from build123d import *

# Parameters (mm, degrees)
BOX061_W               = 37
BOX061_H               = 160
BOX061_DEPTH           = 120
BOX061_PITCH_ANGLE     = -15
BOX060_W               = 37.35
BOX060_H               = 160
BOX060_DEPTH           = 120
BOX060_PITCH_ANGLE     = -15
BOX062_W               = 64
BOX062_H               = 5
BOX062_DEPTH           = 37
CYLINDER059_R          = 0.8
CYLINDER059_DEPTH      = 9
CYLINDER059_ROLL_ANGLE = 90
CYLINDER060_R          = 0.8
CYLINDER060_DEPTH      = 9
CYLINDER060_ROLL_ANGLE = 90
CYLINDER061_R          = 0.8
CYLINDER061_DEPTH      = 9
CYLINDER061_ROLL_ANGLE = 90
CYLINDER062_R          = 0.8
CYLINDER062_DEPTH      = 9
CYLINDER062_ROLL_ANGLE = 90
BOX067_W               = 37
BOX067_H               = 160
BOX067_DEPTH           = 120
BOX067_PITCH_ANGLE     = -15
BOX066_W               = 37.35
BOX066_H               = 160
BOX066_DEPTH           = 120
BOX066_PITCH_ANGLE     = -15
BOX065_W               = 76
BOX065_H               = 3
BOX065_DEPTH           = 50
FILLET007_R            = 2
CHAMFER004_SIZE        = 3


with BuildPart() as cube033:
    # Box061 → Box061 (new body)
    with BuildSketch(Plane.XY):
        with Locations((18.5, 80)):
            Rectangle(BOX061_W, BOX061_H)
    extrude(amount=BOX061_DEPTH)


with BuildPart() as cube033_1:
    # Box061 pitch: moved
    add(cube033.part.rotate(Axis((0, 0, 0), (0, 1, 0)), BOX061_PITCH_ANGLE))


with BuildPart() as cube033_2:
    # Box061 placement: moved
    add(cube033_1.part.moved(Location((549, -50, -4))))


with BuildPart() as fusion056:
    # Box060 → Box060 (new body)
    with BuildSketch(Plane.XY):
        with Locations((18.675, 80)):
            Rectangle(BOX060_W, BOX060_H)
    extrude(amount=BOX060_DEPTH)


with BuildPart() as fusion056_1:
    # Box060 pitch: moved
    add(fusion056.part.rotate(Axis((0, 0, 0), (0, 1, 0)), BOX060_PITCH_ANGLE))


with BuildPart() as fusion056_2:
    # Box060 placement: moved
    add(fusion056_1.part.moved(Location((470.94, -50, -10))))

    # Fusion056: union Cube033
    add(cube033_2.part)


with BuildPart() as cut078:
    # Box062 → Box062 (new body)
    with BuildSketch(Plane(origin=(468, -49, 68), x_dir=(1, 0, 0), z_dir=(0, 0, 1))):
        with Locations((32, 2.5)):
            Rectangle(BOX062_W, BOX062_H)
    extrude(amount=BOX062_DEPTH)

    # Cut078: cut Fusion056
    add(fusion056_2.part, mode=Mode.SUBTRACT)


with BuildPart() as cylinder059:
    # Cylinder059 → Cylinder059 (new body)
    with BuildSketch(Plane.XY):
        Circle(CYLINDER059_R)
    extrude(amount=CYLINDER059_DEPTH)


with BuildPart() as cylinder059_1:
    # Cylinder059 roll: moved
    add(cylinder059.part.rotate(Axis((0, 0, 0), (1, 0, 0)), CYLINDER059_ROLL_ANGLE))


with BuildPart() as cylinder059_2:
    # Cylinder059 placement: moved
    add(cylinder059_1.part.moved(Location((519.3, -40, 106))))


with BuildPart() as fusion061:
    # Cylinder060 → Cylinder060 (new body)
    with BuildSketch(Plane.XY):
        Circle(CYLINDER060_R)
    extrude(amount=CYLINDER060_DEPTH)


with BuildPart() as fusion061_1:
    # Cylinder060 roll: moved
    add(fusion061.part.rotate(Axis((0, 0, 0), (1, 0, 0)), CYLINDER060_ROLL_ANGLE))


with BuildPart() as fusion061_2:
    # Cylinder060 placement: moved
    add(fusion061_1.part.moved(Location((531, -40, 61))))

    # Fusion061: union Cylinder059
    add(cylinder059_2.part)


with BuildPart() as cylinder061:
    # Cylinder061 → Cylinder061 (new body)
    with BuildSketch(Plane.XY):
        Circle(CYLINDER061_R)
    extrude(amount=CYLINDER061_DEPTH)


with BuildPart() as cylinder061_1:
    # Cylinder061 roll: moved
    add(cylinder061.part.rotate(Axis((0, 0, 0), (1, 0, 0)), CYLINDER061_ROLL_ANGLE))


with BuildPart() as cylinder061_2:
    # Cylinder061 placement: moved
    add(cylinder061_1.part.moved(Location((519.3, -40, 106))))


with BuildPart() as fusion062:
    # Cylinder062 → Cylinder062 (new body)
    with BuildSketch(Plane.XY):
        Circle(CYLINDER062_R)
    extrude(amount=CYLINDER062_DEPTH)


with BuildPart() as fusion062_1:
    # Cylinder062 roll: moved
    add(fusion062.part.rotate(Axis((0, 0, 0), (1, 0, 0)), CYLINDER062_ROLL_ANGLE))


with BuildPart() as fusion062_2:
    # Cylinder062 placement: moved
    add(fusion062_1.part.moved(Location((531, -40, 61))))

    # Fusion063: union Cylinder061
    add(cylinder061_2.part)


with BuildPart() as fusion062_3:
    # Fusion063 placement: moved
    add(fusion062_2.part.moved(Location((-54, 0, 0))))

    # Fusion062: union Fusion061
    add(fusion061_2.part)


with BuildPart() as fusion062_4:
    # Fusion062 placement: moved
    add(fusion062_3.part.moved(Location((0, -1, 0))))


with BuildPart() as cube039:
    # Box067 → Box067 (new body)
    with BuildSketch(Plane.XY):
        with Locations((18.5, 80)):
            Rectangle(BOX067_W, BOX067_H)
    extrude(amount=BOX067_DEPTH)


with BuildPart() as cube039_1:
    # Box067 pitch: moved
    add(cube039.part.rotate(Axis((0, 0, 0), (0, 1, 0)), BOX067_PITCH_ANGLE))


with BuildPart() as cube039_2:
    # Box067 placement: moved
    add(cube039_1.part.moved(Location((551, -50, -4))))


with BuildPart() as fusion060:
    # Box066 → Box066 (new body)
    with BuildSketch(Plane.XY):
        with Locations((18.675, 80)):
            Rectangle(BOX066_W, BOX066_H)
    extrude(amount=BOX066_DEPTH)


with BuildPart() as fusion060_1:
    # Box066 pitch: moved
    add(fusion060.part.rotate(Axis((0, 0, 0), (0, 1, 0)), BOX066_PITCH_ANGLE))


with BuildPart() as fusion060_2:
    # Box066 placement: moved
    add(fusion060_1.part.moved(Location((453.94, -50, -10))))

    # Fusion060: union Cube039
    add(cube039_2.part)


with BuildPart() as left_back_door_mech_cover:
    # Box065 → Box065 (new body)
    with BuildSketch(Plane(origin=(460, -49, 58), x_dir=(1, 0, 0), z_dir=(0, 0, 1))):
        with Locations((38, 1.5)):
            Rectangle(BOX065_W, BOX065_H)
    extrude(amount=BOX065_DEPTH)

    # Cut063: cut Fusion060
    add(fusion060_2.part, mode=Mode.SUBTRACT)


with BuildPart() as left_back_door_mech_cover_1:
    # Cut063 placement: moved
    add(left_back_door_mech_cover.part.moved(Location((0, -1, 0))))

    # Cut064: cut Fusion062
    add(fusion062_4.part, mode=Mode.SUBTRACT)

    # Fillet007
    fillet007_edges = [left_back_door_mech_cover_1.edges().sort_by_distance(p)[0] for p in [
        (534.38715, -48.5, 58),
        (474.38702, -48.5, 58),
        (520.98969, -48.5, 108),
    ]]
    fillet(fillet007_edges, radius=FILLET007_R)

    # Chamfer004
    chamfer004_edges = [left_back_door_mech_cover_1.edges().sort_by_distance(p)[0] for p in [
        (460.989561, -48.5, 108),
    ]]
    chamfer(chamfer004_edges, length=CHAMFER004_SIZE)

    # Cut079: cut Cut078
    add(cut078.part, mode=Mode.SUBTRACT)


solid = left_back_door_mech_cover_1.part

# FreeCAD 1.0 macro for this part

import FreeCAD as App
import Part
import Sketcher
from FreeCAD import Vector


def edges_at(feature, points):
    """Names of the edges that pass closest to the given points."""
    edges = feature.Shape.Edges
    near = lambda p: min(range(len(edges)), key=lambda i: edges[i].distToShape(Part.Vertex(*p))[0])
    return sorted({f"Edge{near(p) + 1}" for p in points})

doc = App.newDocument("Part")
body = doc.addObject("PartDesign::Body", "Body")

# Sketch on XY plane
sketch1 = body.newObject("Sketcher::SketchObject", "Sketch")
sketch1.AttachmentSupport = (doc.getObject("XY_Plane"), [""])
sketch1.MapMode = "FlatFace"
sketch1.addGeometry([
    Part.LineSegment(Vector(0, 160, 0), Vector(0, 0, 0)),
    Part.LineSegment(Vector(0, 0, 0), Vector(37, 0, 0)),
    Part.LineSegment(Vector(37, 0, 0), Vector(37, 160, 0)),
    Part.LineSegment(Vector(37, 160, 0), Vector(0, 160, 0)),
], False)
sketch1.addConstraint([
    Sketcher.Constraint("Coincident", 0, 2, 1, 1),
    Sketcher.Constraint("Coincident", 1, 2, 2, 1),
    Sketcher.Constraint("Coincident", 2, 2, 3, 1),
    Sketcher.Constraint("Coincident", 3, 2, 0, 1),
    Sketcher.Constraint("Vertical", 0),
    Sketcher.Constraint("Horizontal", 1),
    Sketcher.Constraint("Vertical", 2),
    Sketcher.Constraint("Horizontal", 3),
    Sketcher.Constraint("Coincident", 0, 2, -1, 1),
    Sketcher.Constraint("DistanceX", 1, 1, 1, 2, 37.0),
    Sketcher.Constraint("DistanceY", 0, 2, 0, 1, 160.0),
])
pad1 = body.newObject("PartDesign::Pad", "Pad")
pad1.Profile = sketch1
pad1.Length = 120
body2 = doc.addObject("PartDesign::Body", "Body001")
doc.recompute()

body.Placement = App.Placement(Vector(0, 0, 0), App.Rotation(Vector(0, 1, 0), 345))
boolean = body2.newObject("PartDesign::Boolean", "Boolean")
boolean.Type = "Fuse"
boolean.addObjects([body])
body3 = doc.addObject("PartDesign::Body", "Body002")
doc.recompute()

body2.Placement = App.Placement(Vector(549, -50, -4), App.Rotation(Vector(0, 0, 1), 0))
boolean2 = body3.newObject("PartDesign::Boolean", "Boolean001")
boolean2.Type = "Fuse"
boolean2.addObjects([body2])
body4 = doc.addObject("PartDesign::Body", "Body003")

# Sketch on XY plane
sketch2 = body4.newObject("Sketcher::SketchObject", "Sketch001")
sketch2.AttachmentSupport = (doc.getObject("XY_Plane003"), [""])
sketch2.MapMode = "FlatFace"
sketch2.addGeometry([
    Part.LineSegment(Vector(0, 160, 0), Vector(0, 0, 0)),
    Part.LineSegment(Vector(0, 0, 0), Vector(37.35, 0, 0)),
    Part.LineSegment(Vector(37.35, 0, 0), Vector(37.35, 160, 0)),
    Part.LineSegment(Vector(37.35, 160, 0), Vector(0, 160, 0)),
], False)
sketch2.addConstraint([
    Sketcher.Constraint("Coincident", 0, 2, 1, 1),
    Sketcher.Constraint("Coincident", 1, 2, 2, 1),
    Sketcher.Constraint("Coincident", 2, 2, 3, 1),
    Sketcher.Constraint("Coincident", 3, 2, 0, 1),
    Sketcher.Constraint("Vertical", 0),
    Sketcher.Constraint("Horizontal", 1),
    Sketcher.Constraint("Vertical", 2),
    Sketcher.Constraint("Horizontal", 3),
    Sketcher.Constraint("Coincident", 0, 2, -1, 1),
    Sketcher.Constraint("DistanceY", 0, 2, 0, 1, 160.0),
    Sketcher.Constraint("DistanceX", 1, 1, 1, 2, 37.35),
])
pad2 = body4.newObject("PartDesign::Pad", "Pad001")
pad2.Profile = sketch2
pad2.Length = 120
body5 = doc.addObject("PartDesign::Body", "Body004")
doc.recompute()

body4.Placement = App.Placement(Vector(0, 0, 0), App.Rotation(Vector(0, 1, 0), 345))
boolean3 = body5.newObject("PartDesign::Boolean", "Boolean002")
boolean3.Type = "Fuse"
boolean3.addObjects([body4])
body6 = doc.addObject("PartDesign::Body", "Body005")
body6.AllowCompound = True
doc.recompute()

body5.Placement = App.Placement(Vector(470.94, -50, -10), App.Rotation(Vector(0, 0, 1), 0))
boolean4 = body6.newObject("PartDesign::Boolean", "Boolean003")
boolean4.Type = "Fuse"
boolean4.addObjects([body5])
doc.recompute()

boolean5 = body6.newObject("PartDesign::Boolean", "Boolean004")
boolean5.Type = "Fuse"
boolean5.addObjects([body3])
body7 = doc.addObject("PartDesign::Body", "Body006")

# Sketch on XY plane
sketch3 = body7.newObject("Sketcher::SketchObject", "Sketch002")
sketch3.AttachmentSupport = (doc.getObject("XY_Plane006"), [""])
sketch3.MapMode = "FlatFace"
sketch3.AttachmentOffset = App.Placement(Vector(0, 0, 68), App.Rotation())
sketch3.addGeometry([
    Part.LineSegment(Vector(468, -44, 0), Vector(468, -49, 0)),
    Part.LineSegment(Vector(468, -49, 0), Vector(532, -49, 0)),
    Part.LineSegment(Vector(532, -49, 0), Vector(532, -44, 0)),
    Part.LineSegment(Vector(532, -44, 0), Vector(468, -44, 0)),
], False)
sketch3.addConstraint([
    Sketcher.Constraint("Coincident", 0, 2, 1, 1),
    Sketcher.Constraint("Coincident", 1, 2, 2, 1),
    Sketcher.Constraint("Coincident", 2, 2, 3, 1),
    Sketcher.Constraint("Coincident", 3, 2, 0, 1),
    Sketcher.Constraint("Vertical", 0),
    Sketcher.Constraint("Horizontal", 1),
    Sketcher.Constraint("Vertical", 2),
    Sketcher.Constraint("Horizontal", 3),
    Sketcher.Constraint("DistanceX", 1, 1, 1, 2, 64.0),
    Sketcher.Constraint("DistanceY", 0, 2, 0, 1, 5.0),
    Sketcher.Constraint("DistanceX", -1, 1, 0, 2, 468.0),
    Sketcher.Constraint("DistanceY", 0, 2, -1, 1, 49.0),
])
pad3 = body7.newObject("PartDesign::Pad", "Pad002")
pad3.Profile = sketch3
pad3.Length = 37
doc.recompute()

boolean6 = body7.newObject("PartDesign::Boolean", "Boolean005")
boolean6.Type = "Cut"
boolean6.addObjects([body6])
body8 = doc.addObject("PartDesign::Body", "Body007")

# Sketch on XY plane
sketch4 = body8.newObject("Sketcher::SketchObject", "Sketch003")
sketch4.AttachmentSupport = (doc.getObject("XY_Plane007"), [""])
sketch4.MapMode = "FlatFace"
sketch4.addGeometry(Part.Circle(Vector(0, 0, 0), Vector(0, 0, 1), 0.8), False)
sketch4.addConstraint([
    Sketcher.Constraint("Coincident", 0, 3, -1, 1),
    Sketcher.Constraint("Diameter", 0, 1.6),
])
pad4 = body8.newObject("PartDesign::Pad", "Pad003")
pad4.Profile = sketch4
pad4.Length = 9
body9 = doc.addObject("PartDesign::Body", "Body008")
doc.recompute()

body8.Placement = App.Placement(Vector(0, 0, 0), App.Rotation(Vector(1, 0, 0), 90))
boolean7 = body9.newObject("PartDesign::Boolean", "Boolean006")
boolean7.Type = "Fuse"
boolean7.addObjects([body8])
body10 = doc.addObject("PartDesign::Body", "Body009")
doc.recompute()

body9.Placement = App.Placement(Vector(519.3, -40, 106), App.Rotation(Vector(0, 0, 1), 0))
boolean8 = body10.newObject("PartDesign::Boolean", "Boolean007")
boolean8.Type = "Fuse"
boolean8.addObjects([body9])
body11 = doc.addObject("PartDesign::Body", "Body010")

# Sketch on XY plane
sketch5 = body11.newObject("Sketcher::SketchObject", "Sketch004")
sketch5.AttachmentSupport = (doc.getObject("XY_Plane010"), [""])
sketch5.MapMode = "FlatFace"
sketch5.addGeometry(Part.Circle(Vector(0, 0, 0), Vector(0, 0, 1), 0.8), False)
sketch5.addConstraint([
    Sketcher.Constraint("Coincident", 0, 3, -1, 1),
    Sketcher.Constraint("Diameter", 0, 1.6),
])
pad5 = body11.newObject("PartDesign::Pad", "Pad004")
pad5.Profile = sketch5
pad5.Length = 9
body12 = doc.addObject("PartDesign::Body", "Body011")
doc.recompute()

body11.Placement = App.Placement(Vector(0, 0, 0), App.Rotation(Vector(1, 0, 0), 90))
boolean9 = body12.newObject("PartDesign::Boolean", "Boolean008")
boolean9.Type = "Fuse"
boolean9.addObjects([body11])
body13 = doc.addObject("PartDesign::Body", "Body012")
body13.AllowCompound = True
doc.recompute()

body12.Placement = App.Placement(Vector(531, -40, 61), App.Rotation(Vector(0, 0, 1), 0))
boolean10 = body13.newObject("PartDesign::Boolean", "Boolean009")
boolean10.Type = "Fuse"
boolean10.addObjects([body12])
doc.recompute()

boolean11 = body13.newObject("PartDesign::Boolean", "Boolean010")
boolean11.Type = "Fuse"
boolean11.addObjects([body10])
body14 = doc.addObject("PartDesign::Body", "Body013")

# Sketch on XY plane
sketch6 = body14.newObject("Sketcher::SketchObject", "Sketch005")
sketch6.AttachmentSupport = (doc.getObject("XY_Plane013"), [""])
sketch6.MapMode = "FlatFace"
sketch6.addGeometry(Part.Circle(Vector(0, 0, 0), Vector(0, 0, 1), 0.8), False)
sketch6.addConstraint([
    Sketcher.Constraint("Coincident", 0, 3, -1, 1),
    Sketcher.Constraint("Diameter", 0, 1.6),
])
pad6 = body14.newObject("PartDesign::Pad", "Pad005")
pad6.Profile = sketch6
pad6.Length = 9
body15 = doc.addObject("PartDesign::Body", "Body014")
doc.recompute()

body14.Placement = App.Placement(Vector(0, 0, 0), App.Rotation(Vector(1, 0, 0), 90))
boolean12 = body15.newObject("PartDesign::Boolean", "Boolean011")
boolean12.Type = "Fuse"
boolean12.addObjects([body14])
body16 = doc.addObject("PartDesign::Body", "Body015")
doc.recompute()

body15.Placement = App.Placement(Vector(519.3, -40, 106), App.Rotation(Vector(0, 0, 1), 0))
boolean13 = body16.newObject("PartDesign::Boolean", "Boolean012")
boolean13.Type = "Fuse"
boolean13.addObjects([body15])
body17 = doc.addObject("PartDesign::Body", "Body016")

# Sketch on XY plane
sketch7 = body17.newObject("Sketcher::SketchObject", "Sketch006")
sketch7.AttachmentSupport = (doc.getObject("XY_Plane016"), [""])
sketch7.MapMode = "FlatFace"
sketch7.addGeometry(Part.Circle(Vector(0, 0, 0), Vector(0, 0, 1), 0.8), False)
sketch7.addConstraint([
    Sketcher.Constraint("Coincident", 0, 3, -1, 1),
    Sketcher.Constraint("Diameter", 0, 1.6),
])
pad7 = body17.newObject("PartDesign::Pad", "Pad006")
pad7.Profile = sketch7
pad7.Length = 9
body18 = doc.addObject("PartDesign::Body", "Body017")
doc.recompute()

body17.Placement = App.Placement(Vector(0, 0, 0), App.Rotation(Vector(1, 0, 0), 90))
boolean14 = body18.newObject("PartDesign::Boolean", "Boolean013")
boolean14.Type = "Fuse"
boolean14.addObjects([body17])
body19 = doc.addObject("PartDesign::Body", "Body018")
body19.AllowCompound = True
doc.recompute()

body18.Placement = App.Placement(Vector(531, -40, 61), App.Rotation(Vector(0, 0, 1), 0))
boolean15 = body19.newObject("PartDesign::Boolean", "Boolean014")
boolean15.Type = "Fuse"
boolean15.addObjects([body18])
doc.recompute()

boolean16 = body19.newObject("PartDesign::Boolean", "Boolean015")
boolean16.Type = "Fuse"
boolean16.addObjects([body16])
body20 = doc.addObject("PartDesign::Body", "Body019")
body20.AllowCompound = True
doc.recompute()

body19.Placement = App.Placement(Vector(-54, 0, 0), App.Rotation(Vector(0, 0, 1), 0))
boolean17 = body20.newObject("PartDesign::Boolean", "Boolean016")
boolean17.Type = "Fuse"
boolean17.addObjects([body19])
doc.recompute()

boolean18 = body20.newObject("PartDesign::Boolean", "Boolean017")
boolean18.Type = "Fuse"
boolean18.addObjects([body13])
body21 = doc.addObject("PartDesign::Body", "Body020")
body21.AllowCompound = True
doc.recompute()

body20.Placement = App.Placement(Vector(0, -1, 0), App.Rotation(Vector(0, 0, 1), 0))
boolean19 = body21.newObject("PartDesign::Boolean", "Boolean018")
boolean19.Type = "Fuse"
boolean19.addObjects([body20])
body22 = doc.addObject("PartDesign::Body", "Body021")

# Sketch on XY plane
sketch8 = body22.newObject("Sketcher::SketchObject", "Sketch007")
sketch8.AttachmentSupport = (doc.getObject("XY_Plane021"), [""])
sketch8.MapMode = "FlatFace"
sketch8.addGeometry([
    Part.LineSegment(Vector(0, 160, 0), Vector(0, 0, 0)),
    Part.LineSegment(Vector(0, 0, 0), Vector(37, 0, 0)),
    Part.LineSegment(Vector(37, 0, 0), Vector(37, 160, 0)),
    Part.LineSegment(Vector(37, 160, 0), Vector(0, 160, 0)),
], False)
sketch8.addConstraint([
    Sketcher.Constraint("Coincident", 0, 2, 1, 1),
    Sketcher.Constraint("Coincident", 1, 2, 2, 1),
    Sketcher.Constraint("Coincident", 2, 2, 3, 1),
    Sketcher.Constraint("Coincident", 3, 2, 0, 1),
    Sketcher.Constraint("Vertical", 0),
    Sketcher.Constraint("Horizontal", 1),
    Sketcher.Constraint("Vertical", 2),
    Sketcher.Constraint("Horizontal", 3),
    Sketcher.Constraint("Coincident", 0, 2, -1, 1),
    Sketcher.Constraint("DistanceX", 1, 1, 1, 2, 37.0),
    Sketcher.Constraint("DistanceY", 0, 2, 0, 1, 160.0),
])
pad8 = body22.newObject("PartDesign::Pad", "Pad007")
pad8.Profile = sketch8
pad8.Length = 120
body23 = doc.addObject("PartDesign::Body", "Body022")
doc.recompute()

body22.Placement = App.Placement(Vector(0, 0, 0), App.Rotation(Vector(0, 1, 0), 345))
boolean20 = body23.newObject("PartDesign::Boolean", "Boolean019")
boolean20.Type = "Fuse"
boolean20.addObjects([body22])
body24 = doc.addObject("PartDesign::Body", "Body023")
doc.recompute()

body23.Placement = App.Placement(Vector(551, -50, -4), App.Rotation(Vector(0, 0, 1), 0))
boolean21 = body24.newObject("PartDesign::Boolean", "Boolean020")
boolean21.Type = "Fuse"
boolean21.addObjects([body23])
body25 = doc.addObject("PartDesign::Body", "Body024")

# Sketch on XY plane
sketch9 = body25.newObject("Sketcher::SketchObject", "Sketch008")
sketch9.AttachmentSupport = (doc.getObject("XY_Plane024"), [""])
sketch9.MapMode = "FlatFace"
sketch9.addGeometry([
    Part.LineSegment(Vector(0, 160, 0), Vector(0, 0, 0)),
    Part.LineSegment(Vector(0, 0, 0), Vector(37.35, 0, 0)),
    Part.LineSegment(Vector(37.35, 0, 0), Vector(37.35, 160, 0)),
    Part.LineSegment(Vector(37.35, 160, 0), Vector(0, 160, 0)),
], False)
sketch9.addConstraint([
    Sketcher.Constraint("Coincident", 0, 2, 1, 1),
    Sketcher.Constraint("Coincident", 1, 2, 2, 1),
    Sketcher.Constraint("Coincident", 2, 2, 3, 1),
    Sketcher.Constraint("Coincident", 3, 2, 0, 1),
    Sketcher.Constraint("Vertical", 0),
    Sketcher.Constraint("Horizontal", 1),
    Sketcher.Constraint("Vertical", 2),
    Sketcher.Constraint("Horizontal", 3),
    Sketcher.Constraint("Coincident", 0, 2, -1, 1),
    Sketcher.Constraint("DistanceY", 0, 2, 0, 1, 160.0),
    Sketcher.Constraint("DistanceX", 1, 1, 1, 2, 37.35),
])
pad9 = body25.newObject("PartDesign::Pad", "Pad008")
pad9.Profile = sketch9
pad9.Length = 120
body26 = doc.addObject("PartDesign::Body", "Body025")
doc.recompute()

body25.Placement = App.Placement(Vector(0, 0, 0), App.Rotation(Vector(0, 1, 0), 345))
boolean22 = body26.newObject("PartDesign::Boolean", "Boolean021")
boolean22.Type = "Fuse"
boolean22.addObjects([body25])
body27 = doc.addObject("PartDesign::Body", "Body026")
body27.AllowCompound = True
doc.recompute()

body26.Placement = App.Placement(Vector(453.94, -50, -10), App.Rotation(Vector(0, 0, 1), 0))
boolean23 = body27.newObject("PartDesign::Boolean", "Boolean022")
boolean23.Type = "Fuse"
boolean23.addObjects([body26])
doc.recompute()

boolean24 = body27.newObject("PartDesign::Boolean", "Boolean023")
boolean24.Type = "Fuse"
boolean24.addObjects([body24])
body28 = doc.addObject("PartDesign::Body", "Body027")

# Sketch on XY plane
sketch10 = body28.newObject("Sketcher::SketchObject", "Sketch009")
sketch10.AttachmentSupport = (doc.getObject("XY_Plane027"), [""])
sketch10.MapMode = "FlatFace"
sketch10.AttachmentOffset = App.Placement(Vector(0, 0, 58), App.Rotation())
sketch10.addGeometry([
    Part.LineSegment(Vector(460, -46, 0), Vector(460, -49, 0)),
    Part.LineSegment(Vector(460, -49, 0), Vector(536, -49, 0)),
    Part.LineSegment(Vector(536, -49, 0), Vector(536, -46, 0)),
    Part.LineSegment(Vector(536, -46, 0), Vector(460, -46, 0)),
], False)
sketch10.addConstraint([
    Sketcher.Constraint("Coincident", 0, 2, 1, 1),
    Sketcher.Constraint("Coincident", 1, 2, 2, 1),
    Sketcher.Constraint("Coincident", 2, 2, 3, 1),
    Sketcher.Constraint("Coincident", 3, 2, 0, 1),
    Sketcher.Constraint("Vertical", 0),
    Sketcher.Constraint("Horizontal", 1),
    Sketcher.Constraint("Vertical", 2),
    Sketcher.Constraint("Horizontal", 3),
    Sketcher.Constraint("DistanceX", 1, 1, 1, 2, 76.0),
    Sketcher.Constraint("DistanceY", 0, 2, 0, 1, 3.0),
    Sketcher.Constraint("DistanceX", -1, 1, 0, 2, 460.0),
    Sketcher.Constraint("DistanceY", 0, 2, -1, 1, 49.0),
])
pad10 = body28.newObject("PartDesign::Pad", "Pad009")
pad10.Profile = sketch10
pad10.Length = 50
doc.recompute()

boolean25 = body28.newObject("PartDesign::Boolean", "Boolean024")
boolean25.Type = "Cut"
boolean25.addObjects([body27])
body29 = doc.addObject("PartDesign::Body", "Body028")
doc.recompute()

body28.Placement = App.Placement(Vector(0, -1, 0), App.Rotation(Vector(0, 0, 1), 0))
boolean26 = body29.newObject("PartDesign::Boolean", "Boolean025")
boolean26.Type = "Fuse"
boolean26.addObjects([body28])
doc.recompute()

boolean27 = body29.newObject("PartDesign::Boolean", "Boolean026")
boolean27.Type = "Cut"
boolean27.addObjects([body21])
doc.recompute()

fillet = body29.newObject("PartDesign::Fillet", "Fillet")
fillet.Base = (boolean27, edges_at(boolean27, [(534.387, -48.5, 58), (474.387, -48.5, 58), (520.99, -48.5, 108)]))
fillet.Radius = 2
doc.recompute()

chamfer = body29.newObject("PartDesign::Chamfer", "Chamfer")
chamfer.Base = (fillet, edges_at(fillet, [(460.99, -48.5, 108)]))
chamfer.Size = 3
doc.recompute()

boolean28 = body29.newObject("PartDesign::Boolean", "Boolean027")
boolean28.Type = "Cut"
boolean28.addObjects([body7])

doc.recompute()
